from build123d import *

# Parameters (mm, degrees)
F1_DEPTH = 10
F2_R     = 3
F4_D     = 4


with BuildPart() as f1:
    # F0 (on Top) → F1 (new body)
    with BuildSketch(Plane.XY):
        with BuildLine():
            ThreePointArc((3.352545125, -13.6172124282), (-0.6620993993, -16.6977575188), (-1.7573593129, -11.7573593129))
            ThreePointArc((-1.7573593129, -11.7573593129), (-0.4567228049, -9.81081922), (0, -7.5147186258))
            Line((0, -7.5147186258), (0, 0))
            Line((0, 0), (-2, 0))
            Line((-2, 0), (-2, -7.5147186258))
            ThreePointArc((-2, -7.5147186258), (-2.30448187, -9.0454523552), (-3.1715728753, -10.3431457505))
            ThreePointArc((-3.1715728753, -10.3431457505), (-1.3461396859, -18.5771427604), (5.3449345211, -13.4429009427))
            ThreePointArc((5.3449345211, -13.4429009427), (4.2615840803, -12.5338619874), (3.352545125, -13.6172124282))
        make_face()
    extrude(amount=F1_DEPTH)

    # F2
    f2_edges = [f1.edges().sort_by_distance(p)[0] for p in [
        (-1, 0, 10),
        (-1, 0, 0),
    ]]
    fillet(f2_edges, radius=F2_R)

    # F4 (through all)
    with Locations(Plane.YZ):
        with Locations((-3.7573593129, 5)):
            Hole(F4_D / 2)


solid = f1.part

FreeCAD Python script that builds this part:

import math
import FreeCAD as App
import Part
import Sketcher
from FreeCAD import Vector


def edges_at(feature, points):
    """Names of the edges that pass closest to the given points."""
    edges = feature.Shape.Edges
    near = lambda p: min(range(len(edges)), key=lambda i: edges[i].distToShape(Part.Vertex(*p))[0])
    return sorted({f"Edge{near(p) + 1}" for p in points})

doc = App.newDocument("Part")
body = doc.addObject("PartDesign::Body", "Body")

# Sketch on XY plane
sketch1 = doc.addObject("Sketcher::SketchObject", "Sketch")
body.addObject(sketch1)
sketch1.AttachmentSupport = (doc.XY_Plane, [""])
sketch1.MapMode = "FlatFace"
sketch1.addGeometry(Part.ArcOfCircle(Part.Circle(Vector(0.363961, -13.87868, 0), Vector(0, 0, 1), 3), math.radians(135), math.radians(365)), False)
sketch1.addGeometry(Part.ArcOfCircle(Part.Circle(Vector(-6, -7.514719, 0), Vector(0, 0, 1), 6), math.radians(-45), math.radians(0)), False)
sketch1.addGeometry(Part.LineSegment(Vector(0, -7.514719, 0), Vector(0, 0, 0)), False)
sketch1.addGeometry(Part.LineSegment(Vector(0, 0, 0), Vector(-2, 0, 0)), False)
sketch1.addGeometry(Part.LineSegment(Vector(-2, 0, 0), Vector(-2, -7.514719, 0)), False)
sketch1.addGeometry(Part.ArcOfCircle(Part.Circle(Vector(-6, -7.514719, 0), Vector(0, 0, 1), 4), math.radians(-45), math.radians(0)), False)
sketch1.addGeometry(Part.ArcOfCircle(Part.Circle(Vector(0.363961, -13.87868, 0), Vector(0, 0, 1), 5), math.radians(135), math.radians(365)), False)
sketch1.addGeometry(Part.ArcOfCircle(Part.Circle(Vector(4.34874, -13.530057, 0), Vector(0, 0, 1), 1), math.radians(5), math.radians(185)), False)
sketch1.addConstraint(Sketcher.Constraint("Tangent", 0, 1, 1, 1))
sketch1.addConstraint(Sketcher.Constraint("Tangent", 1, 2, 2, 1))
sketch1.addConstraint(Sketcher.Constraint("Coincident", 2, 2, 3, 1))
sketch1.addConstraint(Sketcher.Constraint("Coincident", 3, 2, 4, 1))
sketch1.addConstraint(Sketcher.Constraint("Tangent", 4, 2, 5, 2))
sketch1.addConstraint(Sketcher.Constraint("Tangent", 5, 1, 6, 1))
sketch1.addConstraint(Sketcher.Constraint("Tangent", 6, 2, 7, 1))
sketch1.addConstraint(Sketcher.Constraint("Tangent", 7, 2, 0, 2))
sketch1.addConstraint(Sketcher.Constraint("Vertical", 2))
sketch1.addConstraint(Sketcher.Constraint("Horizontal", 3))
sketch1.addConstraint(Sketcher.Constraint("Vertical", 4))
sketch1.addConstraint(Sketcher.Constraint("Coincident", 2, 2, -1, 1))
sketch1.addConstraint(Sketcher.Constraint("Coincident", 5, 3, 1, 3))
sketch1.addConstraint(Sketcher.Constraint("Coincident", 6, 3, 0, 3))
sketch1.addConstraint(Sketcher.Constraint("Radius", 0, 3.0))
sketch1.addConstraint(Sketcher.Constraint("Radius", 1, 6.0))
sketch1.addConstraint(Sketcher.Constraint("Radius", 5, 4.0))
sketch1.addConstraint(Sketcher.Constraint("DistanceY", 2, 1, 2, 2, 7.514719))
sketch1.addConstraint(Sketcher.Constraint("DistanceY", 6, 2, -1, 1, 13.442901))
sketch1.addConstraint(Sketcher.Constraint("DistanceX", 0, 1, 7, 3, 6.106099))
pad1 = doc.addObject("PartDesign::Pad", "Pad")
body.addObject(pad1)
pad1.Profile = sketch1
pad1.Length = 10
doc.recompute()

fillet = doc.addObject("PartDesign::Fillet", "Fillet")
body.addObject(fillet)
fillet.Base = (pad1, edges_at(pad1, [(-1, 0, 10), (-1, 0, 0)]))
fillet.Radius = 3

# Sketch on YZ plane
sketch2 = doc.addObject("Sketcher::SketchObject", "Sketch001")
body.addObject(sketch2)
sketch2.AttachmentSupport = (doc.YZ_Plane, [""])
sketch2.MapMode = "FlatFace"
sketch2.addGeometry(Part.Circle(Vector(-3.757359, 5, 0), Vector(0, 0, 1), 2), False)
sketch2.addConstraint(Sketcher.Constraint("Diameter", 0, 4.0))
sketch2.addConstraint(Sketcher.Constraint("DistanceY", -1, 1, 0, 3, 5.0))
sketch2.addConstraint(Sketcher.Constraint("DistanceX", 0, 3, -1, 1, 3.757359))
doc.recompute()
hole = doc.addObject("PartDesign::Hole", "Hole")
body.addObject(hole)
hole.Profile = sketch2
hole.ThreadType = "None"
hole.Diameter = 4
hole.DepthType = "ThroughAll"

doc.recompute()
